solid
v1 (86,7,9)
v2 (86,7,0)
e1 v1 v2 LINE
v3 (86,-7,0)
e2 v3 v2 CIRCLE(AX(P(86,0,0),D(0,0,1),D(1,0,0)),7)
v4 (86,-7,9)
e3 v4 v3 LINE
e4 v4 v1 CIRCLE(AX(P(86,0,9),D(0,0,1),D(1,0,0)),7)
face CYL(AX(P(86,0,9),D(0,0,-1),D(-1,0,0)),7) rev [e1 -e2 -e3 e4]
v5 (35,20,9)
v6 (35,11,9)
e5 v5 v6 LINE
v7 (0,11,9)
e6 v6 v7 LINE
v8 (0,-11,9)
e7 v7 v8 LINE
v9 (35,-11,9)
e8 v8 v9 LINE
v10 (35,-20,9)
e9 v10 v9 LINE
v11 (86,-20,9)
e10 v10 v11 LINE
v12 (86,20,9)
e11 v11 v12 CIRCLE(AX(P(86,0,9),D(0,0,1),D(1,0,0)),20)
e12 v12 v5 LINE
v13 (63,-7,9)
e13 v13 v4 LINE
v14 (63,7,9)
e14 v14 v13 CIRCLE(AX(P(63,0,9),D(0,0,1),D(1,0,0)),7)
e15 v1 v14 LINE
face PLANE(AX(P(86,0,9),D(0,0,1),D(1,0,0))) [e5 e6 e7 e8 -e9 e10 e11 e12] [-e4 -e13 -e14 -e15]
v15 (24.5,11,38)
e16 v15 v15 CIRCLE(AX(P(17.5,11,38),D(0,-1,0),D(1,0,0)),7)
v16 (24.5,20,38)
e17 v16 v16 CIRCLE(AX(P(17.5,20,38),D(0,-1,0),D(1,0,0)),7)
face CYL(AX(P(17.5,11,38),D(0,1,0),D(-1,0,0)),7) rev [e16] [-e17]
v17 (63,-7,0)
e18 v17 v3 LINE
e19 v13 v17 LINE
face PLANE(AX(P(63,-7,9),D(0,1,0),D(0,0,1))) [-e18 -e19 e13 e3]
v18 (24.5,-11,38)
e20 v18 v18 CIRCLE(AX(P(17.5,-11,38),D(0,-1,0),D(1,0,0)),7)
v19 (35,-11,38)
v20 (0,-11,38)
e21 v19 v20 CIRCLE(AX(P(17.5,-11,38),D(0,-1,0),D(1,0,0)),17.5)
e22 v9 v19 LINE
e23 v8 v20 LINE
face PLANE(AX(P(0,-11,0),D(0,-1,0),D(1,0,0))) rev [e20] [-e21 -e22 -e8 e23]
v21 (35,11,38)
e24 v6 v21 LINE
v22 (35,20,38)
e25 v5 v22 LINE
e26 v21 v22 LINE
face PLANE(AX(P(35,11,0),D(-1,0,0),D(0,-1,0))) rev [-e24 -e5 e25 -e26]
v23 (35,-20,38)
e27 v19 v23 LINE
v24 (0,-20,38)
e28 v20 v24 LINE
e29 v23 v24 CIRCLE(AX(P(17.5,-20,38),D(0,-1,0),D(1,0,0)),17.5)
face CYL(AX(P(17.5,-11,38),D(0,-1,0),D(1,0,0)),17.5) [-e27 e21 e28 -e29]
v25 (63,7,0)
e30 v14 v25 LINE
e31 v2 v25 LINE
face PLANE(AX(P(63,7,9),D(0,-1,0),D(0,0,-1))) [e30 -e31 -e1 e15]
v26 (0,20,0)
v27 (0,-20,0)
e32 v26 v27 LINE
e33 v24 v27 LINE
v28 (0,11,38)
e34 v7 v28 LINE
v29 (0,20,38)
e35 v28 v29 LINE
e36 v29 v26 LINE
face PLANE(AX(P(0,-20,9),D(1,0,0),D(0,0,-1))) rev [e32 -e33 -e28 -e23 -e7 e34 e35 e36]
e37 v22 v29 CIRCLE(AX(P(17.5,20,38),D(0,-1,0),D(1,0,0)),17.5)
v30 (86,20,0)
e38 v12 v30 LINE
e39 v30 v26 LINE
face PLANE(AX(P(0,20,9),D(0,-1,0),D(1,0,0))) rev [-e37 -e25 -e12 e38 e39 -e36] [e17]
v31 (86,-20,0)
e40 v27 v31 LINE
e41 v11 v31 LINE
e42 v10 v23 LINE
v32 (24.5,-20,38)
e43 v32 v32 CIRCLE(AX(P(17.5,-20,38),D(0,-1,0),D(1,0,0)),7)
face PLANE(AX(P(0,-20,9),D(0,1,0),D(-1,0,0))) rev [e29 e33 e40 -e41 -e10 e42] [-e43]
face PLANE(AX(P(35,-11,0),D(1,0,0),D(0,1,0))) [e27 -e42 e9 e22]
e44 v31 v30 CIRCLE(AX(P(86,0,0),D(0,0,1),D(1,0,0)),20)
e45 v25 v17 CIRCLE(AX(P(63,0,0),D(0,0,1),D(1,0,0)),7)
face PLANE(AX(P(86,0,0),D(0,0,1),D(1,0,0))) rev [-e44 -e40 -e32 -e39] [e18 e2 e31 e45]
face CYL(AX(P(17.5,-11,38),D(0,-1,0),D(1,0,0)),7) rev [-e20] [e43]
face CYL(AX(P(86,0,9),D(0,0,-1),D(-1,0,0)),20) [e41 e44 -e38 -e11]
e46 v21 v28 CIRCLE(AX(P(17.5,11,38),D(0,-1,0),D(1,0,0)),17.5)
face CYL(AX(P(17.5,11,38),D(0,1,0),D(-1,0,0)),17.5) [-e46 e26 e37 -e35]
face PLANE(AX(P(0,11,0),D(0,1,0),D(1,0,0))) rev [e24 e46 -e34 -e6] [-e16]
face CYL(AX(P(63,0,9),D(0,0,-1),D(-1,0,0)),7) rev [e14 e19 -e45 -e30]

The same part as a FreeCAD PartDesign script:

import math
import FreeCAD as App
import Part
import Sketcher

V = App.Vector
Q = App.Units.Quantity

doc = App.newDocument("Part")
params = doc.addObject("Spreadsheet::Sheet", "Params")
for row, (alias, value) in enumerate([
    ("sketch1_radius", "20 mm"),
    ("sketch1_radius2", "7 mm"),
    ("sketch1_width", "86 mm"),
    ("sketch1_width2", "23 mm"),
    ("pad1_length", "9 mm"),
    ("sketch2_diameter", "14 mm"),
    ("sketch2_radius", "17.5 mm"),
    ("sketch2_height", "38 mm"),
    ("pad2_length", "9 mm"),
], start=1):
    params.set(f"A{row}", alias)
    params.set(f"B{row}", "=" + value)
    params.setAlias(f"B{row}", alias)

body = doc.addObject("PartDesign::Body", "Body")

# Sketch on XY plane
sketch1 = body.newObject("Sketcher::SketchObject", "Sketch")
sketch1.AttachmentSupport = (doc.getObject("XY_Plane"), [""])
sketch1.MapMode = "FlatFace"
sketch1.addGeometry([
    Part.LineSegment(V(0, -20, 0), V(86, -20, 0)),  # 0
    Part.ArcOfCircle(Part.Circle(V(86, 0, 0), V(0, 0, 1), 20), math.radians(-90), math.radians(90)),  # 1
    Part.LineSegment(V(86, 20, 0), V(0, 20, 0)),  # 2
    Part.LineSegment(V(0, 20, 0), V(0, -20, 0)),  # 3
    Part.ArcOfCircle(Part.Circle(V(63, 0, 0), V(0, 0, 1), 7), math.radians(90), math.radians(270)),  # 4
    Part.LineSegment(V(63, 7, 0), V(86, 7, 0)),  # 5
    Part.ArcOfCircle(Part.Circle(V(86, 0, 0), V(0, 0, 1), 7), math.radians(-90), math.radians(90)),  # 6
    Part.LineSegment(V(86, -7, 0), V(63, -7, 0)),  # 7
], False)
sketch1.addConstraint([
    Sketcher.Constraint("Tangent", 0, 2, 1, 1),
    Sketcher.Constraint("Tangent", 1, 2, 2, 1),
    Sketcher.Constraint("Coincident", 2, 2, 3, 1),
    Sketcher.Constraint("Coincident", 3, 2, 0, 1),
    Sketcher.Constraint("Tangent", 4, 1, 5, 1),
    Sketcher.Constraint("Tangent", 5, 2, 6, 2),
    Sketcher.Constraint("Tangent", 6, 1, 7, 1),
    Sketcher.Constraint("Tangent", 7, 2, 4, 2),
    Sketcher.Constraint("Horizontal", 0),
    Sketcher.Constraint("Horizontal", 2),
    Sketcher.Constraint("Vertical", 3),
    Sketcher.Constraint("Horizontal", 5),
    Sketcher.Constraint("Horizontal", 7),
    Sketcher.Constraint("Coincident", 6, 3, 1, 3),
    Sketcher.Constraint("Symmetric", 2, 2, 3, 2, -1, 1),
    Sketcher.Constraint("Radius", 1, Q("20 mm")),
    Sketcher.Constraint("Radius", 4, Q("7 mm")),
    Sketcher.Constraint("DistanceX", 0, 1, 0, 2, Q("86 mm")),
    Sketcher.Constraint("DistanceX", 5, 1, 5, 2, Q("23 mm")),
])
sketch1.setExpression("Constraints[15]", "Params.sketch1_radius")
sketch1.setExpression("Constraints[16]", "Params.sketch1_radius2")
sketch1.setExpression("Constraints[17]", "Params.sketch1_width")
sketch1.setExpression("Constraints[18]", "Params.sketch1_width2")
pad1 = body.newObject("PartDesign::Pad", "Pad")
pad1.Profile = sketch1
pad1.setExpression("Length", "Params.pad1_length")

# Sketch on XZ plane
sketch2 = body.newObject("Sketcher::SketchObject", "Sketch001")
sketch2.AttachmentSupport = (doc.getObject("XZ_Plane"), [""])
sketch2.MapMode = "FlatFace"
sketch2.AttachmentOffset = App.Placement(V(0, 0, 20), App.Rotation())
sketch2.addGeometry([
    Part.LineSegment(V(0, 38, 0), V(0, 0, 0)),  # 0
    Part.LineSegment(V(0, 0, 0), V(35, 0, 0)),  # 1
    Part.LineSegment(V(35, 0, 0), V(35, 38, 0)),  # 2
    Part.ArcOfCircle(Part.Circle(V(18, 38, 0), V(0, 0, 1), 18), math.radians(0), math.radians(180)),  # 3
    Part.Circle(V(18, 38, 0), V(0, 0, 1), 7),  # 4
], False)
sketch2.addConstraint([
    Sketcher.Constraint("Coincident", 0, 2, 1, 1),
    Sketcher.Constraint("Coincident", 1, 2, 2, 1),
    Sketcher.Constraint("Tangent", 2, 2, 3, 1),
    Sketcher.Constraint("Tangent", 3, 2, 0, 1),
    Sketcher.Constraint("Vertical", 0),
    Sketcher.Constraint("Horizontal", 1),
    Sketcher.Constraint("Vertical", 2),
    Sketcher.Constraint("Coincident", 0, 2, -1, 1),
    Sketcher.Constraint("Coincident", 4, 3, 3, 3),
    Sketcher.Constraint("Diameter", 4, Q("14 mm")),
    Sketcher.Constraint("Radius", 3, Q("17.5 mm")),
    Sketcher.Constraint("DistanceY", 0, 2, 0, 1, Q("38 mm")),
])
sketch2.setExpression("Constraints[9]", "Params.sketch2_diameter")
sketch2.setExpression("Constraints[10]", "Params.sketch2_radius")
sketch2.setExpression("Constraints[11]", "Params.sketch2_height")
pad2 = body.newObject("PartDesign::Pad", "Pad001")
pad2.Profile = sketch2
pad2.setExpression("Length", "Params.pad2_length")
pad2.Reversed = True
doc.recompute()

mirrored = body.newObject("PartDesign::Mirrored", "Mirrored")
mirrored.Originals = [pad2]
mirrored.MirrorPlane = (doc.getObject("XZ_Plane"), [""])
body.Tip = mirrored

doc.recompute()
